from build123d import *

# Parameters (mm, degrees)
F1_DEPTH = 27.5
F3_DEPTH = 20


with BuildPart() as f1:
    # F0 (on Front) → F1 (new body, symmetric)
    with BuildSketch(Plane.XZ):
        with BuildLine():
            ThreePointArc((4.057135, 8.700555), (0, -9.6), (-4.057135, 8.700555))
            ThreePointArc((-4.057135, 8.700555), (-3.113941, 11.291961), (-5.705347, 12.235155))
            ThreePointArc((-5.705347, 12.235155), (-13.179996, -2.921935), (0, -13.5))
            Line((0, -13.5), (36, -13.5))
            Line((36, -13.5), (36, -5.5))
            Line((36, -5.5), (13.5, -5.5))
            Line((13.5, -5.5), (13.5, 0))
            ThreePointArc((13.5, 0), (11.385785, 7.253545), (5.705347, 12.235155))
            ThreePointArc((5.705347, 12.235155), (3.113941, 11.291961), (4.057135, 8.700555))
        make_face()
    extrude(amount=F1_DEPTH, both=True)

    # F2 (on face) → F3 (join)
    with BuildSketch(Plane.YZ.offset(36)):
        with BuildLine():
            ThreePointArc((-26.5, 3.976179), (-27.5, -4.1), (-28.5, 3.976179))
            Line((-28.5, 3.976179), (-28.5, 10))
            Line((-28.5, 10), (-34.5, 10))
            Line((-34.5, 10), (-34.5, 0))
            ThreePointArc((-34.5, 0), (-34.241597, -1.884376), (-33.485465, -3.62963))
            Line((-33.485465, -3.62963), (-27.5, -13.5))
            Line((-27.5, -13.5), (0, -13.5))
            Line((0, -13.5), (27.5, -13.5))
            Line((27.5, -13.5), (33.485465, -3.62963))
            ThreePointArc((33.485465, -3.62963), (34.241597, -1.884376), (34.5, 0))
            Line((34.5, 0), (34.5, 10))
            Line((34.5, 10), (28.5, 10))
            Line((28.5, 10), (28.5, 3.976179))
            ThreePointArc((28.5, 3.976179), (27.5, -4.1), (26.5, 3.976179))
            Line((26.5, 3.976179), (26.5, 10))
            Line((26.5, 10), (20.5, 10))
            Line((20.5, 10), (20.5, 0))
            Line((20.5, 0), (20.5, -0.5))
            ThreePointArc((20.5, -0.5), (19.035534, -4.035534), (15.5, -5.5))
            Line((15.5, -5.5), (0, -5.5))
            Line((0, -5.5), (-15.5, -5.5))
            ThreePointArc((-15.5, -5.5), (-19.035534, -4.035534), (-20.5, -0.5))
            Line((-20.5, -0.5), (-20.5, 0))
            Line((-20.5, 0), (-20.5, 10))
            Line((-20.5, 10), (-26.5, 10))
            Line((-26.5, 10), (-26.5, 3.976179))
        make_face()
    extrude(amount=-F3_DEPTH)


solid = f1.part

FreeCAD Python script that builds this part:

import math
import FreeCAD as App
import Part
import Sketcher
from FreeCAD import Vector

doc = App.newDocument("Part")
body = doc.addObject("PartDesign::Body", "Body")

# Sketch on XZ plane
sketch1 = body.newObject("Sketcher::SketchObject", "Sketch")
sketch1.AttachmentSupport = (doc.getObject("XZ_Plane"), [""])
sketch1.MapMode = "FlatFace"
sketch1.addGeometry([
    Part.ArcOfCircle(Part.Circle(Vector(0, 0, 0), Vector(0, 0, 1), 9.6), math.radians(115), math.radians(425)),  # 0
    Part.ArcOfCircle(Part.Circle(Vector(-4.9, 10.5, 0), Vector(0, 0, 1), 1.9), math.radians(-65), math.radians(115)),  # 1
    Part.ArcOfCircle(Part.Circle(Vector(0, 0, 0), Vector(0, 0, 1), 13.5), math.radians(115), math.radians(270)),  # 2
    Part.LineSegment(Vector(0, -13.5, 0), Vector(36, -13.5, 0)),  # 3
    Part.LineSegment(Vector(36, -13.5, 0), Vector(36, -5.5, 0)),  # 4
    Part.LineSegment(Vector(36, -5.5, 0), Vector(13.5, -5.5, 0)),  # 5
    Part.LineSegment(Vector(13.5, -5.5, 0), Vector(13.5, 0, 0)),  # 6
    Part.ArcOfCircle(Part.Circle(Vector(0, 0, 0), Vector(0, 0, 1), 13.5), math.radians(0), math.radians(65)),  # 7
    Part.ArcOfCircle(Part.Circle(Vector(4.9, 10.5, 0), Vector(0, 0, 1), 1.9), math.radians(65), math.radians(245)),  # 8
], False)
sketch1.addConstraint([
    Sketcher.Constraint("Tangent", 0, 1, 1, 1),
    Sketcher.Constraint("Tangent", 1, 2, 2, 1),
    Sketcher.Constraint("Tangent", 2, 2, 3, 1),
    Sketcher.Constraint("Coincident", 3, 2, 4, 1),
    Sketcher.Constraint("Coincident", 4, 2, 5, 1),
    Sketcher.Constraint("Coincident", 5, 2, 6, 1),
    Sketcher.Constraint("Tangent", 6, 2, 7, 1),
    Sketcher.Constraint("Tangent", 7, 2, 8, 1),
    Sketcher.Constraint("Tangent", 8, 2, 0, 2),
    Sketcher.Constraint("Horizontal", 3),
    Sketcher.Constraint("Vertical", 4),
    Sketcher.Constraint("Horizontal", 5),
    Sketcher.Constraint("Vertical", 6),
    Sketcher.Constraint("Coincident", 0, 3, -1, 1),
    Sketcher.Constraint("Coincident", 2, 3, -1, 1),
    Sketcher.Constraint("Coincident", 7, 3, -1, 1),
    Sketcher.Constraint("Equal", 1, 8),
    Sketcher.Constraint("Horizontal", 1, 3, 8, 3),
    Sketcher.Constraint("Radius", 0, 9.6),
    Sketcher.Constraint("Radius", 2, 13.5),
    Sketcher.Constraint("DistanceX", 3, 1, 3, 2, 36.0),
    Sketcher.Constraint("DistanceY", 4, 1, 4, 2, 8.0),
    Sketcher.Constraint("DistanceY", 0, 1, 1, 3, 1.7673),
])
pad1 = body.newObject("PartDesign::Pad", "Pad")
pad1.Profile = sketch1
pad1.Length = 55
pad1.Midplane = True

# Sketch on YZ plane
sketch2 = body.newObject("Sketcher::SketchObject", "Sketch001")
sketch2.AttachmentSupport = (doc.getObject("YZ_Plane"), [""])
sketch2.MapMode = "FlatFace"
sketch2.AttachmentOffset = App.Placement(Vector(0, 0, 36), App.Rotation())
sketch2.addGeometry([
    Part.ArcOfCircle(Part.Circle(Vector(-27.5, 0, 0), Vector(0, 0, 1), 4.1), math.radians(104), math.radians(436)),  # 0
    Part.LineSegment(Vector(-28.5, 4, 0), Vector(-28.5, 10, 0)),  # 1
    Part.LineSegment(Vector(-28.5, 10, 0), Vector(-34.5, 10, 0)),  # 2
    Part.LineSegment(Vector(-34.5, 10, 0), Vector(-34.5, 0, 0)),  # 3
    Part.ArcOfCircle(Part.Circle(Vector(-27.5, 0, 0), Vector(0, 0, 1), 7), math.radians(180), math.radians(211)),  # 4
    Part.LineSegment(Vector(-33.5, -3.6, 0), Vector(-27.5, -13.5, 0)),  # 5
    Part.LineSegment(Vector(-27.5, -13.5, 0), Vector(27.5, -13.5, 0)),  # 6
    Part.LineSegment(Vector(27.5, -13.5, 0), Vector(33.5, -3.6, 0)),  # 7
    Part.ArcOfCircle(Part.Circle(Vector(27.5, 0, 0), Vector(0, 0, 1), 7), math.radians(-31), math.radians(0)),  # 8
    Part.LineSegment(Vector(34.5, 0, 0), Vector(34.5, 10, 0)),  # 9
    Part.LineSegment(Vector(34.5, 10, 0), Vector(28.5, 10, 0)),  # 10
    Part.LineSegment(Vector(28.5, 10, 0), Vector(28.5, 4, 0)),  # 11
    Part.ArcOfCircle(Part.Circle(Vector(27.5, 0, 0), Vector(0, 0, 1), 4.1), math.radians(104), math.radians(436)),  # 12
    Part.LineSegment(Vector(26.5, 4, 0), Vector(26.5, 10, 0)),  # 13
    Part.LineSegment(Vector(26.5, 10, 0), Vector(20.5, 10, 0)),  # 14
    Part.LineSegment(Vector(20.5, 10, 0), Vector(20.5, -0.5, 0)),  # 15
    Part.ArcOfCircle(Part.Circle(Vector(15.5, -0.5, 0), Vector(0, 0, 1), 5), math.radians(-90), math.radians(0)),  # 16
    Part.LineSegment(Vector(15.5, -5.5, 0), Vector(-15.5, -5.5, 0)),  # 17
    Part.ArcOfCircle(Part.Circle(Vector(-15.5, -0.5, 0), Vector(0, 0, 1), 5), math.radians(180), math.radians(270)),  # 18
    Part.LineSegment(Vector(-20.5, -0.5, 0), Vector(-20.5, 10, 0)),  # 19
    Part.LineSegment(Vector(-20.5, 10, 0), Vector(-26.5, 10, 0)),  # 20
    Part.LineSegment(Vector(-26.5, 10, 0), Vector(-26.5, 4, 0)),  # 21
], False)
sketch2.addConstraint([
    Sketcher.Constraint("Coincident", 0, 1, 1, 1),
    Sketcher.Constraint("Coincident", 1, 2, 2, 1),
    Sketcher.Constraint("Coincident", 2, 2, 3, 1),
    Sketcher.Constraint("Tangent", 3, 2, 4, 1),
    Sketcher.Constraint("Tangent", 4, 2, 5, 1),
    Sketcher.Constraint("Coincident", 5, 2, 6, 1),
    Sketcher.Constraint("Coincident", 6, 2, 7, 1),
    Sketcher.Constraint("Tangent", 7, 2, 8, 1),
    Sketcher.Constraint("Tangent", 8, 2, 9, 1),
    Sketcher.Constraint("Coincident", 9, 2, 10, 1),
    Sketcher.Constraint("Coincident", 10, 2, 11, 1),
    Sketcher.Constraint("Coincident", 11, 2, 12, 2),
    Sketcher.Constraint("Coincident", 12, 1, 13, 1),
    Sketcher.Constraint("Coincident", 13, 2, 14, 1),
    Sketcher.Constraint("Coincident", 14, 2, 15, 1),
    Sketcher.Constraint("Tangent", 15, 2, 16, 2),
    Sketcher.Constraint("Tangent", 16, 1, 17, 1),
    Sketcher.Constraint("Tangent", 17, 2, 18, 2),
    Sketcher.Constraint("Tangent", 18, 1, 19, 1),
    Sketcher.Constraint("Coincident", 19, 2, 20, 1),
    Sketcher.Constraint("Coincident", 20, 2, 21, 1),
    Sketcher.Constraint("Coincident", 21, 2, 0, 2),
    Sketcher.Constraint("Vertical", 1),
    Sketcher.Constraint("Horizontal", 2),
    Sketcher.Constraint("Vertical", 3),
    Sketcher.Constraint("Horizontal", 6),
    Sketcher.Constraint("Vertical", 9),
    Sketcher.Constraint("Horizontal", 10),
    Sketcher.Constraint("Vertical", 11),
    Sketcher.Constraint("Vertical", 13),
    Sketcher.Constraint("Horizontal", 14),
    Sketcher.Constraint("Vertical", 15),
    Sketcher.Constraint("Horizontal", 17),
    Sketcher.Constraint("Vertical", 19),
    Sketcher.Constraint("Horizontal", 20),
    Sketcher.Constraint("Vertical", 21),
    Sketcher.Constraint("Coincident", 4, 3, 0, 3),
    Sketcher.Constraint("Coincident", 12, 3, 8, 3),
    Sketcher.Constraint("Equal", 4, 8),
    Sketcher.Constraint("Equal", 0, 12),
    Sketcher.Constraint("Equal", 16, 18),
    Sketcher.Constraint("Symmetric", 0, 3, 8, 3, -1, 1),
    Sketcher.Constraint("Symmetric", 4, 2, 7, 2, -2),
    Sketcher.Constraint("Symmetric", 1, 2, 10, 2, -2),
    Sketcher.Constraint("Symmetric", 14, 2, 19, 2, -2),
    Sketcher.Constraint("Horizontal", 11, 2, 12, 1),
    Sketcher.Constraint("Horizontal", 10, 2, 13, 2),
    Sketcher.Constraint("Horizontal", 12, 1, 21, 2),
    Sketcher.Constraint("Vertical", 4, 3, 5, 2),
    Sketcher.Constraint("Equal", 10, 14),
    Sketcher.Constraint("Radius", 4, 6.999999),
    Sketcher.Constraint("Radius", 16, 5.0),
    Sketcher.Constraint("Radius", 0, 4.1),
    Sketcher.Constraint("DistanceX", 2, 2, 2, 1, 6.0),
    Sketcher.Constraint("DistanceX", 6, 1, 6, 2, 55.0),
    Sketcher.Constraint("DistanceY", 3, 2, 3, 1, 10.0),
    Sketcher.Constraint("DistanceY", 15, 2, 15, 1, 10.5),
    Sketcher.Constraint("DistanceY", 6, 2, 16, 3, 13.0),
])
pad2 = body.newObject("PartDesign::Pad", "Pad001")
pad2.Profile = sketch2
pad2.Length = 20
pad2.Reversed = True

doc.recompute()
